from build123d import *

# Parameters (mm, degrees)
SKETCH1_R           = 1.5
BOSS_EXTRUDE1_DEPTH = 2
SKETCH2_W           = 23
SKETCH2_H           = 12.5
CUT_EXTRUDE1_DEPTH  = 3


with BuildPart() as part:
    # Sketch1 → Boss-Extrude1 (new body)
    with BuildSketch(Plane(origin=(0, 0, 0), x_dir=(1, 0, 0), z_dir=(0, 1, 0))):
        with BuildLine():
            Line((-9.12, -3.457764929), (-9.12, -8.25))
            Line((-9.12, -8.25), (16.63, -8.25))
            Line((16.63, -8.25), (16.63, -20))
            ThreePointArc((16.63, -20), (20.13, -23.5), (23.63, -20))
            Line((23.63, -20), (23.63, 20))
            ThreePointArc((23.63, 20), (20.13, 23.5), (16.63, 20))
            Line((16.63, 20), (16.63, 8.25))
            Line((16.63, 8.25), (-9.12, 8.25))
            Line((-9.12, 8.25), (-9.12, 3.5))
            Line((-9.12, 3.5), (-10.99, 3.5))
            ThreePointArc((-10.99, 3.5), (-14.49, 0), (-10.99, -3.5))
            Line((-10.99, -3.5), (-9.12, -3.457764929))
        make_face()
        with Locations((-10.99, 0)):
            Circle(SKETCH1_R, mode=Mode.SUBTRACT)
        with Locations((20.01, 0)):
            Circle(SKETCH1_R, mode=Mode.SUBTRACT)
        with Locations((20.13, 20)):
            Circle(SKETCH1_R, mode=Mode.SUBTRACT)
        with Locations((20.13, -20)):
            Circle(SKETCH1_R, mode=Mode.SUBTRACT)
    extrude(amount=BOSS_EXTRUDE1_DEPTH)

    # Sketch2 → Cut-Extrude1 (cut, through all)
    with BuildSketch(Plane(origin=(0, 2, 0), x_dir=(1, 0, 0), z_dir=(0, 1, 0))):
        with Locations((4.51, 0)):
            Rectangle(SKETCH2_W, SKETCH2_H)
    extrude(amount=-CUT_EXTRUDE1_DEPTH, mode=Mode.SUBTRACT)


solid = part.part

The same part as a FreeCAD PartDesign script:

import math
import FreeCAD as App
import Part
import Sketcher

V = App.Vector

doc = App.newDocument("Part")
body = doc.addObject("PartDesign::Body", "Body")

# Sketch on XZ plane
sketch1 = doc.addObject("Sketcher::SketchObject", "Sketch")
body.addObject(sketch1)
sketch1.AttachmentSupport = (doc.XZ_Plane, [""])
sketch1.MapMode = "FlatFace"
sketch1.addGeometry(Part.LineSegment(V(-9.1, 3.5, 0), V(-9.1, 8.2, 0)), False)
sketch1.addGeometry(Part.LineSegment(V(-9.1, 8.2, 0), V(16.6, 8.2, 0)), False)
sketch1.addGeometry(Part.LineSegment(V(16.6, 8.2, 0), V(16.6, 20, 0)), False)
sketch1.addGeometry(Part.ArcOfCircle(Part.Circle(V(20.1, 20, 0), V(0, 0, 1), 3.5), math.radians(0), math.radians(180)), False)
sketch1.addGeometry(Part.LineSegment(V(23.6, 20, 0), V(23.6, -20, 0)), False)
sketch1.addGeometry(Part.ArcOfCircle(Part.Circle(V(20.1, -20, 0), V(0, 0, 1), 3.5), math.radians(180), math.radians(360)), False)
sketch1.addGeometry(Part.LineSegment(V(16.6, -20, 0), V(16.6, -8.2, 0)), False)
sketch1.addGeometry(Part.LineSegment(V(16.6, -8.2, 0), V(-9.1, -8.2, 0)), False)
sketch1.addGeometry(Part.LineSegment(V(-9.1, -8.2, 0), V(-9.1, -3.5, 0)), False)
sketch1.addGeometry(Part.LineSegment(V(-9.1, -3.5, 0), V(-11, -3.5, 0)), False)
sketch1.addGeometry(Part.ArcOfCircle(Part.Circle(V(-11, 0, 0), V(0, 0, 1), 3.5), math.radians(90), math.radians(270)), False)
sketch1.addGeometry(Part.LineSegment(V(-11, 3.5, 0), V(-9.1, 3.5, 0)), False)
sketch1.addGeometry(Part.Circle(V(20.1, 20, 0), V(0, 0, 1), 1.5), False)
sketch1.addGeometry(Part.Circle(V(-11, 0, 0), V(0, 0, 1), 1.5), False)
sketch1.addGeometry(Part.Circle(V(20, 0, 0), V(0, 0, 1), 1.5), False)
sketch1.addGeometry(Part.Circle(V(20.1, -20, 0), V(0, 0, 1), 1.5), False)
sketch1.addConstraint(Sketcher.Constraint("Coincident", 0, 2, 1, 1))
sketch1.addConstraint(Sketcher.Constraint("Coincident", 1, 2, 2, 1))
sketch1.addConstraint(Sketcher.Constraint("Tangent", 2, 2, 3, 2))
sketch1.addConstraint(Sketcher.Constraint("Tangent", 3, 1, 4, 1))
sketch1.addConstraint(Sketcher.Constraint("Tangent", 4, 2, 5, 2))
sketch1.addConstraint(Sketcher.Constraint("Tangent", 5, 1, 6, 1))
sketch1.addConstraint(Sketcher.Constraint("Coincident", 6, 2, 7, 1))
sketch1.addConstraint(Sketcher.Constraint("Coincident", 7, 2, 8, 1))
sketch1.addConstraint(Sketcher.Constraint("Coincident", 8, 2, 9, 1))
sketch1.addConstraint(Sketcher.Constraint("Tangent", 9, 2, 10, 2))
sketch1.addConstraint(Sketcher.Constraint("Coincident", 10, 1, 11, 1))
sketch1.addConstraint(Sketcher.Constraint("Coincident", 11, 2, 0, 1))
sketch1.addConstraint(Sketcher.Constraint("Vertical", 0))
sketch1.addConstraint(Sketcher.Constraint("Horizontal", 1))
sketch1.addConstraint(Sketcher.Constraint("Vertical", 2))
sketch1.addConstraint(Sketcher.Constraint("Vertical", 4))
sketch1.addConstraint(Sketcher.Constraint("Vertical", 6))
sketch1.addConstraint(Sketcher.Constraint("Horizontal", 7))
sketch1.addConstraint(Sketcher.Constraint("Vertical", 8))
sketch1.addConstraint(Sketcher.Constraint("Horizontal", 9))
sketch1.addConstraint(Sketcher.Constraint("Coincident", 12, 3, 3, 3))
sketch1.addConstraint(Sketcher.Constraint("Coincident", 13, 3, 10, 3))
sketch1.addConstraint(Sketcher.Constraint("Coincident", 15, 3, 5, 3))
sketch1.addConstraint(Sketcher.Constraint("Equal", 3, 5))
sketch1.addConstraint(Sketcher.Constraint("Equal", 5, 10))
sketch1.addConstraint(Sketcher.Constraint("Equal", 12, 13))
sketch1.addConstraint(Sketcher.Constraint("Equal", 13, 14))
sketch1.addConstraint(Sketcher.Constraint("Equal", 14, 15))
sketch1.addConstraint(Sketcher.Constraint("Symmetric", 0, 2, 7, 2, -1))
sketch1.addConstraint(Sketcher.Constraint("Symmetric", 9, 2, 10, 1, -1))
sketch1.addConstraint(Sketcher.Constraint("PointOnObject", 14, 3, -1))
sketch1.addConstraint(Sketcher.Constraint("Equal", 2, 6))
sketch1.addConstraint(Sketcher.Constraint("Diameter", 12, 3.0))
sketch1.addConstraint(Sketcher.Constraint("Radius", 3, 3.5))
sketch1.addConstraint(Sketcher.Constraint("DistanceY", 4, 2, 4, 1, 40.0))
sketch1.addConstraint(Sketcher.Constraint("DistanceX", 10, 3, 14, 3, 31.0))
sketch1.addConstraint(Sketcher.Constraint("DistanceX", 1, 1, 1, 2, 25.75))
sketch1.addConstraint(Sketcher.Constraint("DistanceX", 9, 2, 9, 1, 1.87))
sketch1.addConstraint(Sketcher.Constraint("DistanceY", 2, 1, 2, 2, 11.75))
sketch1.addConstraint(Sketcher.Constraint("DistanceX", -1, 1, 3, 3, 20.13))
sketch1.addConstraint(Sketcher.Constraint("DistanceY", 0, 1, 0, 2, 4.792235))
pad1 = doc.addObject("PartDesign::Pad", "Pad")
body.addObject(pad1)
pad1.Profile = sketch1
pad1.Length = 2
pad1.Reversed = True

# Sketch on XZ plane
sketch2 = doc.addObject("Sketcher::SketchObject", "Sketch001")
body.addObject(sketch2)
sketch2.AttachmentSupport = (doc.XZ_Plane, [""])
sketch2.MapMode = "FlatFace"
sketch2.AttachmentOffset = App.Placement(V(0, 0, -2), App.Rotation())
sketch2.addGeometry(Part.LineSegment(V(-7, -6, 0), V(-7, 6, 0)), False)
sketch2.addGeometry(Part.LineSegment(V(-7, 6, 0), V(16, 6, 0)), False)
sketch2.addGeometry(Part.LineSegment(V(16, 6, 0), V(16, -6, 0)), False)
sketch2.addGeometry(Part.LineSegment(V(16, -6, 0), V(-7, -6, 0)), False)
sketch2.addConstraint(Sketcher.Constraint("Coincident", 0, 2, 1, 1))
sketch2.addConstraint(Sketcher.Constraint("Coincident", 1, 2, 2, 1))
sketch2.addConstraint(Sketcher.Constraint("Coincident", 2, 2, 3, 1))
sketch2.addConstraint(Sketcher.Constraint("Coincident", 3, 2, 0, 1))
sketch2.addConstraint(Sketcher.Constraint("Vertical", 0))
sketch2.addConstraint(Sketcher.Constraint("Horizontal", 1))
sketch2.addConstraint(Sketcher.Constraint("Vertical", 2))
sketch2.addConstraint(Sketcher.Constraint("Horizontal", 3))
sketch2.addConstraint(Sketcher.Constraint("DistanceX", 1, 1, 1, 2, 23.0))
sketch2.addConstraint(Sketcher.Constraint("DistanceY", 0, 1, 0, 2, 12.5))
sketch2.addConstraint(Sketcher.Constraint("DistanceX", 0, 2, -1, 1, 6.99))
sketch2.addConstraint(Sketcher.Constraint("DistanceY", -1, 1, 0, 2, 6.25))
pocket1 = doc.addObject("PartDesign::Pocket", "Pocket")
body.addObject(pocket1)
pocket1.Profile = sketch2
pocket1.Type = "ThroughAll"
pocket1.Reversed = True

doc.recompute()
